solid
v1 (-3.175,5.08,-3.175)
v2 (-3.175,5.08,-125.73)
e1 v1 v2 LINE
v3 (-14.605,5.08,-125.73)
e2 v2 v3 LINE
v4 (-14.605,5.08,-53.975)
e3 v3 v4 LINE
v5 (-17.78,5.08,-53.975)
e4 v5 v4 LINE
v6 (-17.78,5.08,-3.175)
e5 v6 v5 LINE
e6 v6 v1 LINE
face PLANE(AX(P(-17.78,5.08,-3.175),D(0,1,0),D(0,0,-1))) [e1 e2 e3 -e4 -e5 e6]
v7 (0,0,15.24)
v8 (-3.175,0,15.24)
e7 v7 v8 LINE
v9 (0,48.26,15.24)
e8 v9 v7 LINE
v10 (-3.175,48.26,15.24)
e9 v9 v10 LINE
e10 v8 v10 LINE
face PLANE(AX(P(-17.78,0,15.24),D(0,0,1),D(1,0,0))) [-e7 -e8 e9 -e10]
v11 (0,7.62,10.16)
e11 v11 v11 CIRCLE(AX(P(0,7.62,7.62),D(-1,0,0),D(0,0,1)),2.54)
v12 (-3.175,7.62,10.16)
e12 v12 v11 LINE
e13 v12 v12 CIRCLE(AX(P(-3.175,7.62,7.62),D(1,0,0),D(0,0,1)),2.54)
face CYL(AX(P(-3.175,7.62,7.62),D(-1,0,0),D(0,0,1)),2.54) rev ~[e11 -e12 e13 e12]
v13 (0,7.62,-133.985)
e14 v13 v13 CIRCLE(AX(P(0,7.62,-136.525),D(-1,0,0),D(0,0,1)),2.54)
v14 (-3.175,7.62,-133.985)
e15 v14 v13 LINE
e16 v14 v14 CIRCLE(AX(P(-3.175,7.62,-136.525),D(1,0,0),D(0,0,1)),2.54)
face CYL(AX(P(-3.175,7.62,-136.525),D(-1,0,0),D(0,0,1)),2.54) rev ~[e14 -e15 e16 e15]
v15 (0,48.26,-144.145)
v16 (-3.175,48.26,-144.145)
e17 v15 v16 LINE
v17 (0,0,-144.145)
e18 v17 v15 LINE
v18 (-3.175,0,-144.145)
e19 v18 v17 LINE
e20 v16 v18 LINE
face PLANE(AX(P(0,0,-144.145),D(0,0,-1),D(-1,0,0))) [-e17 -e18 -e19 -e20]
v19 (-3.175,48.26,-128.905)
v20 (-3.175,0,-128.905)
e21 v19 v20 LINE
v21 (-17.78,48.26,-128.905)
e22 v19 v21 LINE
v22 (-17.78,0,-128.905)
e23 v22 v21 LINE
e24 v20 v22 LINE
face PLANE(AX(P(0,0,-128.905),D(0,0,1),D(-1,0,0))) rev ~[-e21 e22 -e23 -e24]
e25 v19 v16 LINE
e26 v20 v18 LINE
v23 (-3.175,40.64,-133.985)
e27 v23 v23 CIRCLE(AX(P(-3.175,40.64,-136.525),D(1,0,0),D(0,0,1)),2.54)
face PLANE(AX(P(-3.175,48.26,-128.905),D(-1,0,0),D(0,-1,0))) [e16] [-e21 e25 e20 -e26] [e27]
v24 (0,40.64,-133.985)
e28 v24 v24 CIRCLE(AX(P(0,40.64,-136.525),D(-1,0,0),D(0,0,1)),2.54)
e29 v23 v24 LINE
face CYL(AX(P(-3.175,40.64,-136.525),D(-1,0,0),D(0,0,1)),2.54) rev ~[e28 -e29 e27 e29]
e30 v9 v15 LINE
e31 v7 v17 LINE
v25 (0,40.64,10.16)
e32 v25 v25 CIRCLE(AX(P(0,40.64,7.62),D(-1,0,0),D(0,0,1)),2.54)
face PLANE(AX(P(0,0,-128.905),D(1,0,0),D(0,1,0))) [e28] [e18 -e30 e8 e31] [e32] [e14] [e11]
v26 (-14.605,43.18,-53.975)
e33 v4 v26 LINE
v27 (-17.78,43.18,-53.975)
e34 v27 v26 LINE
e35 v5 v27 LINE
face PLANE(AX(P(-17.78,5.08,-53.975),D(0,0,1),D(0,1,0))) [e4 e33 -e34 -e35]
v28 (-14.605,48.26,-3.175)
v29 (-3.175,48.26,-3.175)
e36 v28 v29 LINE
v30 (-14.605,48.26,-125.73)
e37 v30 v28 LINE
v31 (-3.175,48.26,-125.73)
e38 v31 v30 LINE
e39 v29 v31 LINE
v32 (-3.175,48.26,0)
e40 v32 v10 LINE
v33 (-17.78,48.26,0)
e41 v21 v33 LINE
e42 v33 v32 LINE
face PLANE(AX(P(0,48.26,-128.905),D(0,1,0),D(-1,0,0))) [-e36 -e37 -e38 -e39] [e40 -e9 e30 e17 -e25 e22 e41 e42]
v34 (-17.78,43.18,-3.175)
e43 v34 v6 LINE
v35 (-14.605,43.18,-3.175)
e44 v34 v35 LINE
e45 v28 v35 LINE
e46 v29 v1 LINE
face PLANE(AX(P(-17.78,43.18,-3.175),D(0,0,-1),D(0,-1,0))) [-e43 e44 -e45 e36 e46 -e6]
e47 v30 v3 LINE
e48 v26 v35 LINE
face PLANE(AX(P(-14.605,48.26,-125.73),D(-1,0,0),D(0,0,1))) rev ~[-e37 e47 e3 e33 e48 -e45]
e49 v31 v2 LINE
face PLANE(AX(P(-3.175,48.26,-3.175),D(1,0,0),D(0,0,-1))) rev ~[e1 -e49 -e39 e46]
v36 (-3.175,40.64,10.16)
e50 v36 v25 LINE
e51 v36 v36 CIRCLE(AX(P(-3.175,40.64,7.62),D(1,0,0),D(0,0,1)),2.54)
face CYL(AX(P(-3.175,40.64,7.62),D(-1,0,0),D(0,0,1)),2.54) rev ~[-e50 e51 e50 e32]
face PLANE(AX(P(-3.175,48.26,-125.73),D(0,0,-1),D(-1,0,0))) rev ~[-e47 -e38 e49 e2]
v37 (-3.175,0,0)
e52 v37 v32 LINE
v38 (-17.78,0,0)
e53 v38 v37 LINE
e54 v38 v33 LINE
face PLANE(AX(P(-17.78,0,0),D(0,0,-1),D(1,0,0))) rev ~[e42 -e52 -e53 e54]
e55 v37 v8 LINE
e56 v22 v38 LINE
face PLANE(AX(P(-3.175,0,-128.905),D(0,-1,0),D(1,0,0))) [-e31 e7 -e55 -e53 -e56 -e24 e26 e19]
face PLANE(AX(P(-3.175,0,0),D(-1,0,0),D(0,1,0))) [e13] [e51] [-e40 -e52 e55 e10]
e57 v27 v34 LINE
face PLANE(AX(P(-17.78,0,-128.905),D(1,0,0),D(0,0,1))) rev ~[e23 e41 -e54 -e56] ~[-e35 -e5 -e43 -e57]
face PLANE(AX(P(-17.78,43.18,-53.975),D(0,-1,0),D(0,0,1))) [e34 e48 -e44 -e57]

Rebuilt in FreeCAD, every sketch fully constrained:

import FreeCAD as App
import Part
import Sketcher
from FreeCAD import Vector
Q = App.Units.Quantity

doc = App.newDocument("Part")
body = doc.addObject("PartDesign::Body", "Body")

# Sketch on XZ plane
sketch1 = body.newObject("Sketcher::SketchObject", "Sketch")
sketch1.AttachmentSupport = (doc.getObject("XZ_Plane"), [""])
sketch1.MapMode = "FlatFace"
sketch1.addGeometry([
    Part.LineSegment(Vector(-17.78, 0, 0), Vector(0, 0, 0)),
    Part.LineSegment(Vector(0, 0, 0), Vector(0, -128.905, 0)),
    Part.LineSegment(Vector(0, -128.905, 0), Vector(-17.78, -128.905, 0)),
    Part.LineSegment(Vector(-17.78, -128.905, 0), Vector(-17.78, 0, 0)),
], False)
sketch1.addConstraint([
    Sketcher.Constraint("Coincident", 0, 2, 1, 1),
    Sketcher.Constraint("Coincident", 1, 2, 2, 1),
    Sketcher.Constraint("Coincident", 2, 2, 3, 1),
    Sketcher.Constraint("Coincident", 3, 2, 0, 1),
    Sketcher.Constraint("Horizontal", 0),
    Sketcher.Constraint("Vertical", 1),
    Sketcher.Constraint("Horizontal", 2),
    Sketcher.Constraint("Vertical", 3),
    Sketcher.Constraint("Coincident", 0, 2, -1, 1),
    Sketcher.Constraint("DistanceX", 0, 1, 0, 2, Q("0.7 in")),
    Sketcher.Constraint("DistanceY", 1, 2, 1, 1, Q("5.075 in")),
])
pad1 = body.newObject("PartDesign::Pad", "Pad")
pad1.Profile = sketch1
pad1.Length = Q("1.9 in")
pad1.Reversed = True

# Sketch on XZ plane
sketch2 = body.newObject("Sketcher::SketchObject", "Sketch001")
sketch2.AttachmentSupport = (doc.getObject("XZ_Plane"), [""])
sketch2.MapMode = "FlatFace"
sketch2.AttachmentOffset = App.Placement(Vector(0, 0, -1.9 * 25.4), App.Rotation())
sketch2.addGeometry([
    Part.LineSegment(Vector(-14.605, -3.175, 0), Vector(-3.175, -3.175, 0)),
    Part.LineSegment(Vector(-3.175, -3.175, 0), Vector(-3.175, -125.73, 0)),
    Part.LineSegment(Vector(-3.175, -125.73, 0), Vector(-14.605, -125.73, 0)),
    Part.LineSegment(Vector(-14.605, -125.73, 0), Vector(-14.605, -3.175, 0)),
], False)
sketch2.addConstraint([
    Sketcher.Constraint("Coincident", 0, 2, 1, 1),
    Sketcher.Constraint("Coincident", 1, 2, 2, 1),
    Sketcher.Constraint("Coincident", 2, 2, 3, 1),
    Sketcher.Constraint("Coincident", 3, 2, 0, 1),
    Sketcher.Constraint("Horizontal", 0),
    Sketcher.Constraint("Vertical", 1),
    Sketcher.Constraint("Horizontal", 2),
    Sketcher.Constraint("Vertical", 3),
    Sketcher.Constraint("DistanceX", 0, 1, 0, 2, Q("0.45 in")),
    Sketcher.Constraint("DistanceY", 1, 2, 1, 1, Q("4.825 in")),
    Sketcher.Constraint("DistanceX", 0, 2, -1, 1, Q("0.125 in")),
    Sketcher.Constraint("DistanceY", 0, 2, -1, 1, Q("0.125 in")),
])
pocket1 = body.newObject("PartDesign::Pocket", "Pocket")
pocket1.Profile = sketch2
pocket1.Length = Q("1.7 in")
pocket1.Reversed = True

# Sketch on YZ plane
sketch3 = body.newObject("Sketcher::SketchObject", "Sketch002")
sketch3.AttachmentSupport = (doc.getObject("YZ_Plane"), [""])
sketch3.MapMode = "FlatFace"
sketch3.AttachmentOffset = App.Placement(Vector(0, 0, -0.7 * 25.4), App.Rotation())
sketch3.addGeometry([
    Part.LineSegment(Vector(5.08, -53.975, 0), Vector(5.08, -3.175, 0)),
    Part.LineSegment(Vector(5.08, -3.175, 0), Vector(43.18, -3.175, 0)),
    Part.LineSegment(Vector(43.18, -3.175, 0), Vector(43.18, -53.975, 0)),
    Part.LineSegment(Vector(43.18, -53.975, 0), Vector(5.08, -53.975, 0)),
], False)
sketch3.addConstraint([
    Sketcher.Constraint("Coincident", 0, 2, 1, 1),
    Sketcher.Constraint("Coincident", 1, 2, 2, 1),
    Sketcher.Constraint("Coincident", 2, 2, 3, 1),
    Sketcher.Constraint("Coincident", 3, 2, 0, 1),
    Sketcher.Constraint("Vertical", 0),
    Sketcher.Constraint("Horizontal", 1),
    Sketcher.Constraint("Vertical", 2),
    Sketcher.Constraint("Horizontal", 3),
    Sketcher.Constraint("DistanceY", 0, 1, 0, 2, Q("2 in")),
    Sketcher.Constraint("DistanceX", 1, 1, 1, 2, Q("1.5 in")),
    Sketcher.Constraint("DistanceX", -1, 1, 0, 2, Q("0.2 in")),
    Sketcher.Constraint("DistanceY", 0, 2, -1, 1, Q("0.125 in")),
])
pocket2 = body.newObject("PartDesign::Pocket", "Pocket001")
pocket2.Profile = sketch3
pocket2.Length = Q("0.2 in")
pocket2.Reversed = True

# Sketch on XY plane
sketch4 = body.newObject("Sketcher::SketchObject", "Sketch003")
sketch4.AttachmentSupport = (doc.getObject("XY_Plane"), [""])
sketch4.MapMode = "FlatFace"
sketch4.addGeometry([
    Part.LineSegment(Vector(-3.175, 0, 0), Vector(0, 0, 0)),
    Part.LineSegment(Vector(0, 0, 0), Vector(0, 48.26, 0)),
    Part.LineSegment(Vector(0, 48.26, 0), Vector(-3.175, 48.26, 0)),
    Part.LineSegment(Vector(-3.175, 48.26, 0), Vector(-3.175, 0, 0)),
], False)
sketch4.addConstraint([
    Sketcher.Constraint("Coincident", 0, 2, 1, 1),
    Sketcher.Constraint("Coincident", 1, 2, 2, 1),
    Sketcher.Constraint("Coincident", 2, 2, 3, 1),
    Sketcher.Constraint("Coincident", 3, 2, 0, 1),
    Sketcher.Constraint("Horizontal", 0),
    Sketcher.Constraint("Vertical", 1),
    Sketcher.Constraint("Horizontal", 2),
    Sketcher.Constraint("Vertical", 3),
    Sketcher.Constraint("Coincident", 0, 2, -1, 1),
    Sketcher.Constraint("DistanceX", 0, 1, 0, 2, Q("0.125 in")),
    Sketcher.Constraint("DistanceY", 1, 1, 1, 2, Q("1.9 in")),
])
pad2 = body.newObject("PartDesign::Pad", "Pad001")
pad2.Profile = sketch4
pad2.Length = Q("0.6 in")

# Sketch on YZ plane
sketch5 = body.newObject("Sketcher::SketchObject", "Sketch004")
sketch5.AttachmentSupport = (doc.getObject("YZ_Plane"), [""])
sketch5.MapMode = "FlatFace"
sketch5.AttachmentOffset = App.Placement(Vector(0, 0, -0.125 * 25.4), App.Rotation())
sketch5.addGeometry([
    Part.Circle(Vector(40.64, 7.62, 0), Vector(0, 0, 1), 2.54),
    Part.Circle(Vector(7.62, 7.62, 0), Vector(0, 0, 1), 2.54),
], False)
sketch5.addConstraint([
    Sketcher.Constraint("Equal", 0, 1),
    Sketcher.Constraint("Horizontal", 0, 3, 1, 3),
    Sketcher.Constraint("Diameter", 0, Q("0.2 in")),
    Sketcher.Constraint("DistanceY", -1, 1, 0, 3, Q("0.3 in")),
    Sketcher.Constraint("DistanceX", -1, 1, 1, 3, Q("0.3 in")),
    Sketcher.Constraint("DistanceX", -1, 1, 0, 3, Q("1.6 in")),
])
pocket3 = body.newObject("PartDesign::Pocket", "Pocket002")
pocket3.Profile = sketch5
pocket3.Length = Q("0.6 in")
pocket3.Reversed = True

# Sketch on XY plane
sketch6 = body.newObject("Sketcher::SketchObject", "Sketch005")
sketch6.AttachmentSupport = (doc.getObject("XY_Plane"), [""])
sketch6.MapMode = "FlatFace"
sketch6.AttachmentOffset = App.Placement(Vector(0, 0, -5.075 * 25.4), App.Rotation())
sketch6.addGeometry([
    Part.LineSegment(Vector(-3.175, 48.26, 0), Vector(0, 48.26, 0)),
    Part.LineSegment(Vector(0, 48.26, 0), Vector(0, 0, 0)),
    Part.LineSegment(Vector(0, 0, 0), Vector(-3.175, 0, 0)),
    Part.LineSegment(Vector(-3.175, 0, 0), Vector(-3.175, 48.26, 0)),
], False)
sketch6.addConstraint([
    Sketcher.Constraint("Coincident", 0, 2, 1, 1),
    Sketcher.Constraint("Coincident", 1, 2, 2, 1),
    Sketcher.Constraint("Coincident", 2, 2, 3, 1),
    Sketcher.Constraint("Coincident", 3, 2, 0, 1),
    Sketcher.Constraint("Horizontal", 0),
    Sketcher.Constraint("Vertical", 1),
    Sketcher.Constraint("Horizontal", 2),
    Sketcher.Constraint("Vertical", 3),
    Sketcher.Constraint("Coincident", 1, 2, -1, 1),
    Sketcher.Constraint("DistanceX", 0, 1, 0, 2, Q("0.125 in")),
    Sketcher.Constraint("DistanceY", 1, 2, 1, 1, Q("1.9 in")),
])
pad3 = body.newObject("PartDesign::Pad", "Pad002")
pad3.Profile = sketch6
pad3.Length = Q("0.6 in")
pad3.Reversed = True

# Sketch on YZ plane
sketch7 = body.newObject("Sketcher::SketchObject", "Sketch006")
sketch7.AttachmentSupport = (doc.getObject("YZ_Plane"), [""])
sketch7.MapMode = "FlatFace"
sketch7.AttachmentOffset = App.Placement(Vector(0, 0, -0.125 * 25.4), App.Rotation())
sketch7.addGeometry([
    Part.Circle(Vector(7.62, -136.525, 0), Vector(0, 0, 1), 2.54),
    Part.Circle(Vector(40.64, -136.525, 0), Vector(0, 0, 1), 2.54),
], False)
sketch7.addConstraint([
    Sketcher.Constraint("Equal", 0, 1),
    Sketcher.Constraint("Horizontal", 0, 3, 1, 3),
    Sketcher.Constraint("Diameter", 0, Q("0.2 in")),
    Sketcher.Constraint("DistanceX", -1, 1, 0, 3, Q("0.3 in")),
    Sketcher.Constraint("DistanceX", -1, 1, 1, 3, Q("1.6 in")),
    Sketcher.Constraint("DistanceY", 0, 3, -1, 1, Q("5.375 in")),
])
pocket4 = body.newObject("PartDesign::Pocket", "Pocket003")
pocket4.Profile = sketch7
pocket4.Length = Q("0.6 in")
pocket4.Reversed = True

doc.recompute()
